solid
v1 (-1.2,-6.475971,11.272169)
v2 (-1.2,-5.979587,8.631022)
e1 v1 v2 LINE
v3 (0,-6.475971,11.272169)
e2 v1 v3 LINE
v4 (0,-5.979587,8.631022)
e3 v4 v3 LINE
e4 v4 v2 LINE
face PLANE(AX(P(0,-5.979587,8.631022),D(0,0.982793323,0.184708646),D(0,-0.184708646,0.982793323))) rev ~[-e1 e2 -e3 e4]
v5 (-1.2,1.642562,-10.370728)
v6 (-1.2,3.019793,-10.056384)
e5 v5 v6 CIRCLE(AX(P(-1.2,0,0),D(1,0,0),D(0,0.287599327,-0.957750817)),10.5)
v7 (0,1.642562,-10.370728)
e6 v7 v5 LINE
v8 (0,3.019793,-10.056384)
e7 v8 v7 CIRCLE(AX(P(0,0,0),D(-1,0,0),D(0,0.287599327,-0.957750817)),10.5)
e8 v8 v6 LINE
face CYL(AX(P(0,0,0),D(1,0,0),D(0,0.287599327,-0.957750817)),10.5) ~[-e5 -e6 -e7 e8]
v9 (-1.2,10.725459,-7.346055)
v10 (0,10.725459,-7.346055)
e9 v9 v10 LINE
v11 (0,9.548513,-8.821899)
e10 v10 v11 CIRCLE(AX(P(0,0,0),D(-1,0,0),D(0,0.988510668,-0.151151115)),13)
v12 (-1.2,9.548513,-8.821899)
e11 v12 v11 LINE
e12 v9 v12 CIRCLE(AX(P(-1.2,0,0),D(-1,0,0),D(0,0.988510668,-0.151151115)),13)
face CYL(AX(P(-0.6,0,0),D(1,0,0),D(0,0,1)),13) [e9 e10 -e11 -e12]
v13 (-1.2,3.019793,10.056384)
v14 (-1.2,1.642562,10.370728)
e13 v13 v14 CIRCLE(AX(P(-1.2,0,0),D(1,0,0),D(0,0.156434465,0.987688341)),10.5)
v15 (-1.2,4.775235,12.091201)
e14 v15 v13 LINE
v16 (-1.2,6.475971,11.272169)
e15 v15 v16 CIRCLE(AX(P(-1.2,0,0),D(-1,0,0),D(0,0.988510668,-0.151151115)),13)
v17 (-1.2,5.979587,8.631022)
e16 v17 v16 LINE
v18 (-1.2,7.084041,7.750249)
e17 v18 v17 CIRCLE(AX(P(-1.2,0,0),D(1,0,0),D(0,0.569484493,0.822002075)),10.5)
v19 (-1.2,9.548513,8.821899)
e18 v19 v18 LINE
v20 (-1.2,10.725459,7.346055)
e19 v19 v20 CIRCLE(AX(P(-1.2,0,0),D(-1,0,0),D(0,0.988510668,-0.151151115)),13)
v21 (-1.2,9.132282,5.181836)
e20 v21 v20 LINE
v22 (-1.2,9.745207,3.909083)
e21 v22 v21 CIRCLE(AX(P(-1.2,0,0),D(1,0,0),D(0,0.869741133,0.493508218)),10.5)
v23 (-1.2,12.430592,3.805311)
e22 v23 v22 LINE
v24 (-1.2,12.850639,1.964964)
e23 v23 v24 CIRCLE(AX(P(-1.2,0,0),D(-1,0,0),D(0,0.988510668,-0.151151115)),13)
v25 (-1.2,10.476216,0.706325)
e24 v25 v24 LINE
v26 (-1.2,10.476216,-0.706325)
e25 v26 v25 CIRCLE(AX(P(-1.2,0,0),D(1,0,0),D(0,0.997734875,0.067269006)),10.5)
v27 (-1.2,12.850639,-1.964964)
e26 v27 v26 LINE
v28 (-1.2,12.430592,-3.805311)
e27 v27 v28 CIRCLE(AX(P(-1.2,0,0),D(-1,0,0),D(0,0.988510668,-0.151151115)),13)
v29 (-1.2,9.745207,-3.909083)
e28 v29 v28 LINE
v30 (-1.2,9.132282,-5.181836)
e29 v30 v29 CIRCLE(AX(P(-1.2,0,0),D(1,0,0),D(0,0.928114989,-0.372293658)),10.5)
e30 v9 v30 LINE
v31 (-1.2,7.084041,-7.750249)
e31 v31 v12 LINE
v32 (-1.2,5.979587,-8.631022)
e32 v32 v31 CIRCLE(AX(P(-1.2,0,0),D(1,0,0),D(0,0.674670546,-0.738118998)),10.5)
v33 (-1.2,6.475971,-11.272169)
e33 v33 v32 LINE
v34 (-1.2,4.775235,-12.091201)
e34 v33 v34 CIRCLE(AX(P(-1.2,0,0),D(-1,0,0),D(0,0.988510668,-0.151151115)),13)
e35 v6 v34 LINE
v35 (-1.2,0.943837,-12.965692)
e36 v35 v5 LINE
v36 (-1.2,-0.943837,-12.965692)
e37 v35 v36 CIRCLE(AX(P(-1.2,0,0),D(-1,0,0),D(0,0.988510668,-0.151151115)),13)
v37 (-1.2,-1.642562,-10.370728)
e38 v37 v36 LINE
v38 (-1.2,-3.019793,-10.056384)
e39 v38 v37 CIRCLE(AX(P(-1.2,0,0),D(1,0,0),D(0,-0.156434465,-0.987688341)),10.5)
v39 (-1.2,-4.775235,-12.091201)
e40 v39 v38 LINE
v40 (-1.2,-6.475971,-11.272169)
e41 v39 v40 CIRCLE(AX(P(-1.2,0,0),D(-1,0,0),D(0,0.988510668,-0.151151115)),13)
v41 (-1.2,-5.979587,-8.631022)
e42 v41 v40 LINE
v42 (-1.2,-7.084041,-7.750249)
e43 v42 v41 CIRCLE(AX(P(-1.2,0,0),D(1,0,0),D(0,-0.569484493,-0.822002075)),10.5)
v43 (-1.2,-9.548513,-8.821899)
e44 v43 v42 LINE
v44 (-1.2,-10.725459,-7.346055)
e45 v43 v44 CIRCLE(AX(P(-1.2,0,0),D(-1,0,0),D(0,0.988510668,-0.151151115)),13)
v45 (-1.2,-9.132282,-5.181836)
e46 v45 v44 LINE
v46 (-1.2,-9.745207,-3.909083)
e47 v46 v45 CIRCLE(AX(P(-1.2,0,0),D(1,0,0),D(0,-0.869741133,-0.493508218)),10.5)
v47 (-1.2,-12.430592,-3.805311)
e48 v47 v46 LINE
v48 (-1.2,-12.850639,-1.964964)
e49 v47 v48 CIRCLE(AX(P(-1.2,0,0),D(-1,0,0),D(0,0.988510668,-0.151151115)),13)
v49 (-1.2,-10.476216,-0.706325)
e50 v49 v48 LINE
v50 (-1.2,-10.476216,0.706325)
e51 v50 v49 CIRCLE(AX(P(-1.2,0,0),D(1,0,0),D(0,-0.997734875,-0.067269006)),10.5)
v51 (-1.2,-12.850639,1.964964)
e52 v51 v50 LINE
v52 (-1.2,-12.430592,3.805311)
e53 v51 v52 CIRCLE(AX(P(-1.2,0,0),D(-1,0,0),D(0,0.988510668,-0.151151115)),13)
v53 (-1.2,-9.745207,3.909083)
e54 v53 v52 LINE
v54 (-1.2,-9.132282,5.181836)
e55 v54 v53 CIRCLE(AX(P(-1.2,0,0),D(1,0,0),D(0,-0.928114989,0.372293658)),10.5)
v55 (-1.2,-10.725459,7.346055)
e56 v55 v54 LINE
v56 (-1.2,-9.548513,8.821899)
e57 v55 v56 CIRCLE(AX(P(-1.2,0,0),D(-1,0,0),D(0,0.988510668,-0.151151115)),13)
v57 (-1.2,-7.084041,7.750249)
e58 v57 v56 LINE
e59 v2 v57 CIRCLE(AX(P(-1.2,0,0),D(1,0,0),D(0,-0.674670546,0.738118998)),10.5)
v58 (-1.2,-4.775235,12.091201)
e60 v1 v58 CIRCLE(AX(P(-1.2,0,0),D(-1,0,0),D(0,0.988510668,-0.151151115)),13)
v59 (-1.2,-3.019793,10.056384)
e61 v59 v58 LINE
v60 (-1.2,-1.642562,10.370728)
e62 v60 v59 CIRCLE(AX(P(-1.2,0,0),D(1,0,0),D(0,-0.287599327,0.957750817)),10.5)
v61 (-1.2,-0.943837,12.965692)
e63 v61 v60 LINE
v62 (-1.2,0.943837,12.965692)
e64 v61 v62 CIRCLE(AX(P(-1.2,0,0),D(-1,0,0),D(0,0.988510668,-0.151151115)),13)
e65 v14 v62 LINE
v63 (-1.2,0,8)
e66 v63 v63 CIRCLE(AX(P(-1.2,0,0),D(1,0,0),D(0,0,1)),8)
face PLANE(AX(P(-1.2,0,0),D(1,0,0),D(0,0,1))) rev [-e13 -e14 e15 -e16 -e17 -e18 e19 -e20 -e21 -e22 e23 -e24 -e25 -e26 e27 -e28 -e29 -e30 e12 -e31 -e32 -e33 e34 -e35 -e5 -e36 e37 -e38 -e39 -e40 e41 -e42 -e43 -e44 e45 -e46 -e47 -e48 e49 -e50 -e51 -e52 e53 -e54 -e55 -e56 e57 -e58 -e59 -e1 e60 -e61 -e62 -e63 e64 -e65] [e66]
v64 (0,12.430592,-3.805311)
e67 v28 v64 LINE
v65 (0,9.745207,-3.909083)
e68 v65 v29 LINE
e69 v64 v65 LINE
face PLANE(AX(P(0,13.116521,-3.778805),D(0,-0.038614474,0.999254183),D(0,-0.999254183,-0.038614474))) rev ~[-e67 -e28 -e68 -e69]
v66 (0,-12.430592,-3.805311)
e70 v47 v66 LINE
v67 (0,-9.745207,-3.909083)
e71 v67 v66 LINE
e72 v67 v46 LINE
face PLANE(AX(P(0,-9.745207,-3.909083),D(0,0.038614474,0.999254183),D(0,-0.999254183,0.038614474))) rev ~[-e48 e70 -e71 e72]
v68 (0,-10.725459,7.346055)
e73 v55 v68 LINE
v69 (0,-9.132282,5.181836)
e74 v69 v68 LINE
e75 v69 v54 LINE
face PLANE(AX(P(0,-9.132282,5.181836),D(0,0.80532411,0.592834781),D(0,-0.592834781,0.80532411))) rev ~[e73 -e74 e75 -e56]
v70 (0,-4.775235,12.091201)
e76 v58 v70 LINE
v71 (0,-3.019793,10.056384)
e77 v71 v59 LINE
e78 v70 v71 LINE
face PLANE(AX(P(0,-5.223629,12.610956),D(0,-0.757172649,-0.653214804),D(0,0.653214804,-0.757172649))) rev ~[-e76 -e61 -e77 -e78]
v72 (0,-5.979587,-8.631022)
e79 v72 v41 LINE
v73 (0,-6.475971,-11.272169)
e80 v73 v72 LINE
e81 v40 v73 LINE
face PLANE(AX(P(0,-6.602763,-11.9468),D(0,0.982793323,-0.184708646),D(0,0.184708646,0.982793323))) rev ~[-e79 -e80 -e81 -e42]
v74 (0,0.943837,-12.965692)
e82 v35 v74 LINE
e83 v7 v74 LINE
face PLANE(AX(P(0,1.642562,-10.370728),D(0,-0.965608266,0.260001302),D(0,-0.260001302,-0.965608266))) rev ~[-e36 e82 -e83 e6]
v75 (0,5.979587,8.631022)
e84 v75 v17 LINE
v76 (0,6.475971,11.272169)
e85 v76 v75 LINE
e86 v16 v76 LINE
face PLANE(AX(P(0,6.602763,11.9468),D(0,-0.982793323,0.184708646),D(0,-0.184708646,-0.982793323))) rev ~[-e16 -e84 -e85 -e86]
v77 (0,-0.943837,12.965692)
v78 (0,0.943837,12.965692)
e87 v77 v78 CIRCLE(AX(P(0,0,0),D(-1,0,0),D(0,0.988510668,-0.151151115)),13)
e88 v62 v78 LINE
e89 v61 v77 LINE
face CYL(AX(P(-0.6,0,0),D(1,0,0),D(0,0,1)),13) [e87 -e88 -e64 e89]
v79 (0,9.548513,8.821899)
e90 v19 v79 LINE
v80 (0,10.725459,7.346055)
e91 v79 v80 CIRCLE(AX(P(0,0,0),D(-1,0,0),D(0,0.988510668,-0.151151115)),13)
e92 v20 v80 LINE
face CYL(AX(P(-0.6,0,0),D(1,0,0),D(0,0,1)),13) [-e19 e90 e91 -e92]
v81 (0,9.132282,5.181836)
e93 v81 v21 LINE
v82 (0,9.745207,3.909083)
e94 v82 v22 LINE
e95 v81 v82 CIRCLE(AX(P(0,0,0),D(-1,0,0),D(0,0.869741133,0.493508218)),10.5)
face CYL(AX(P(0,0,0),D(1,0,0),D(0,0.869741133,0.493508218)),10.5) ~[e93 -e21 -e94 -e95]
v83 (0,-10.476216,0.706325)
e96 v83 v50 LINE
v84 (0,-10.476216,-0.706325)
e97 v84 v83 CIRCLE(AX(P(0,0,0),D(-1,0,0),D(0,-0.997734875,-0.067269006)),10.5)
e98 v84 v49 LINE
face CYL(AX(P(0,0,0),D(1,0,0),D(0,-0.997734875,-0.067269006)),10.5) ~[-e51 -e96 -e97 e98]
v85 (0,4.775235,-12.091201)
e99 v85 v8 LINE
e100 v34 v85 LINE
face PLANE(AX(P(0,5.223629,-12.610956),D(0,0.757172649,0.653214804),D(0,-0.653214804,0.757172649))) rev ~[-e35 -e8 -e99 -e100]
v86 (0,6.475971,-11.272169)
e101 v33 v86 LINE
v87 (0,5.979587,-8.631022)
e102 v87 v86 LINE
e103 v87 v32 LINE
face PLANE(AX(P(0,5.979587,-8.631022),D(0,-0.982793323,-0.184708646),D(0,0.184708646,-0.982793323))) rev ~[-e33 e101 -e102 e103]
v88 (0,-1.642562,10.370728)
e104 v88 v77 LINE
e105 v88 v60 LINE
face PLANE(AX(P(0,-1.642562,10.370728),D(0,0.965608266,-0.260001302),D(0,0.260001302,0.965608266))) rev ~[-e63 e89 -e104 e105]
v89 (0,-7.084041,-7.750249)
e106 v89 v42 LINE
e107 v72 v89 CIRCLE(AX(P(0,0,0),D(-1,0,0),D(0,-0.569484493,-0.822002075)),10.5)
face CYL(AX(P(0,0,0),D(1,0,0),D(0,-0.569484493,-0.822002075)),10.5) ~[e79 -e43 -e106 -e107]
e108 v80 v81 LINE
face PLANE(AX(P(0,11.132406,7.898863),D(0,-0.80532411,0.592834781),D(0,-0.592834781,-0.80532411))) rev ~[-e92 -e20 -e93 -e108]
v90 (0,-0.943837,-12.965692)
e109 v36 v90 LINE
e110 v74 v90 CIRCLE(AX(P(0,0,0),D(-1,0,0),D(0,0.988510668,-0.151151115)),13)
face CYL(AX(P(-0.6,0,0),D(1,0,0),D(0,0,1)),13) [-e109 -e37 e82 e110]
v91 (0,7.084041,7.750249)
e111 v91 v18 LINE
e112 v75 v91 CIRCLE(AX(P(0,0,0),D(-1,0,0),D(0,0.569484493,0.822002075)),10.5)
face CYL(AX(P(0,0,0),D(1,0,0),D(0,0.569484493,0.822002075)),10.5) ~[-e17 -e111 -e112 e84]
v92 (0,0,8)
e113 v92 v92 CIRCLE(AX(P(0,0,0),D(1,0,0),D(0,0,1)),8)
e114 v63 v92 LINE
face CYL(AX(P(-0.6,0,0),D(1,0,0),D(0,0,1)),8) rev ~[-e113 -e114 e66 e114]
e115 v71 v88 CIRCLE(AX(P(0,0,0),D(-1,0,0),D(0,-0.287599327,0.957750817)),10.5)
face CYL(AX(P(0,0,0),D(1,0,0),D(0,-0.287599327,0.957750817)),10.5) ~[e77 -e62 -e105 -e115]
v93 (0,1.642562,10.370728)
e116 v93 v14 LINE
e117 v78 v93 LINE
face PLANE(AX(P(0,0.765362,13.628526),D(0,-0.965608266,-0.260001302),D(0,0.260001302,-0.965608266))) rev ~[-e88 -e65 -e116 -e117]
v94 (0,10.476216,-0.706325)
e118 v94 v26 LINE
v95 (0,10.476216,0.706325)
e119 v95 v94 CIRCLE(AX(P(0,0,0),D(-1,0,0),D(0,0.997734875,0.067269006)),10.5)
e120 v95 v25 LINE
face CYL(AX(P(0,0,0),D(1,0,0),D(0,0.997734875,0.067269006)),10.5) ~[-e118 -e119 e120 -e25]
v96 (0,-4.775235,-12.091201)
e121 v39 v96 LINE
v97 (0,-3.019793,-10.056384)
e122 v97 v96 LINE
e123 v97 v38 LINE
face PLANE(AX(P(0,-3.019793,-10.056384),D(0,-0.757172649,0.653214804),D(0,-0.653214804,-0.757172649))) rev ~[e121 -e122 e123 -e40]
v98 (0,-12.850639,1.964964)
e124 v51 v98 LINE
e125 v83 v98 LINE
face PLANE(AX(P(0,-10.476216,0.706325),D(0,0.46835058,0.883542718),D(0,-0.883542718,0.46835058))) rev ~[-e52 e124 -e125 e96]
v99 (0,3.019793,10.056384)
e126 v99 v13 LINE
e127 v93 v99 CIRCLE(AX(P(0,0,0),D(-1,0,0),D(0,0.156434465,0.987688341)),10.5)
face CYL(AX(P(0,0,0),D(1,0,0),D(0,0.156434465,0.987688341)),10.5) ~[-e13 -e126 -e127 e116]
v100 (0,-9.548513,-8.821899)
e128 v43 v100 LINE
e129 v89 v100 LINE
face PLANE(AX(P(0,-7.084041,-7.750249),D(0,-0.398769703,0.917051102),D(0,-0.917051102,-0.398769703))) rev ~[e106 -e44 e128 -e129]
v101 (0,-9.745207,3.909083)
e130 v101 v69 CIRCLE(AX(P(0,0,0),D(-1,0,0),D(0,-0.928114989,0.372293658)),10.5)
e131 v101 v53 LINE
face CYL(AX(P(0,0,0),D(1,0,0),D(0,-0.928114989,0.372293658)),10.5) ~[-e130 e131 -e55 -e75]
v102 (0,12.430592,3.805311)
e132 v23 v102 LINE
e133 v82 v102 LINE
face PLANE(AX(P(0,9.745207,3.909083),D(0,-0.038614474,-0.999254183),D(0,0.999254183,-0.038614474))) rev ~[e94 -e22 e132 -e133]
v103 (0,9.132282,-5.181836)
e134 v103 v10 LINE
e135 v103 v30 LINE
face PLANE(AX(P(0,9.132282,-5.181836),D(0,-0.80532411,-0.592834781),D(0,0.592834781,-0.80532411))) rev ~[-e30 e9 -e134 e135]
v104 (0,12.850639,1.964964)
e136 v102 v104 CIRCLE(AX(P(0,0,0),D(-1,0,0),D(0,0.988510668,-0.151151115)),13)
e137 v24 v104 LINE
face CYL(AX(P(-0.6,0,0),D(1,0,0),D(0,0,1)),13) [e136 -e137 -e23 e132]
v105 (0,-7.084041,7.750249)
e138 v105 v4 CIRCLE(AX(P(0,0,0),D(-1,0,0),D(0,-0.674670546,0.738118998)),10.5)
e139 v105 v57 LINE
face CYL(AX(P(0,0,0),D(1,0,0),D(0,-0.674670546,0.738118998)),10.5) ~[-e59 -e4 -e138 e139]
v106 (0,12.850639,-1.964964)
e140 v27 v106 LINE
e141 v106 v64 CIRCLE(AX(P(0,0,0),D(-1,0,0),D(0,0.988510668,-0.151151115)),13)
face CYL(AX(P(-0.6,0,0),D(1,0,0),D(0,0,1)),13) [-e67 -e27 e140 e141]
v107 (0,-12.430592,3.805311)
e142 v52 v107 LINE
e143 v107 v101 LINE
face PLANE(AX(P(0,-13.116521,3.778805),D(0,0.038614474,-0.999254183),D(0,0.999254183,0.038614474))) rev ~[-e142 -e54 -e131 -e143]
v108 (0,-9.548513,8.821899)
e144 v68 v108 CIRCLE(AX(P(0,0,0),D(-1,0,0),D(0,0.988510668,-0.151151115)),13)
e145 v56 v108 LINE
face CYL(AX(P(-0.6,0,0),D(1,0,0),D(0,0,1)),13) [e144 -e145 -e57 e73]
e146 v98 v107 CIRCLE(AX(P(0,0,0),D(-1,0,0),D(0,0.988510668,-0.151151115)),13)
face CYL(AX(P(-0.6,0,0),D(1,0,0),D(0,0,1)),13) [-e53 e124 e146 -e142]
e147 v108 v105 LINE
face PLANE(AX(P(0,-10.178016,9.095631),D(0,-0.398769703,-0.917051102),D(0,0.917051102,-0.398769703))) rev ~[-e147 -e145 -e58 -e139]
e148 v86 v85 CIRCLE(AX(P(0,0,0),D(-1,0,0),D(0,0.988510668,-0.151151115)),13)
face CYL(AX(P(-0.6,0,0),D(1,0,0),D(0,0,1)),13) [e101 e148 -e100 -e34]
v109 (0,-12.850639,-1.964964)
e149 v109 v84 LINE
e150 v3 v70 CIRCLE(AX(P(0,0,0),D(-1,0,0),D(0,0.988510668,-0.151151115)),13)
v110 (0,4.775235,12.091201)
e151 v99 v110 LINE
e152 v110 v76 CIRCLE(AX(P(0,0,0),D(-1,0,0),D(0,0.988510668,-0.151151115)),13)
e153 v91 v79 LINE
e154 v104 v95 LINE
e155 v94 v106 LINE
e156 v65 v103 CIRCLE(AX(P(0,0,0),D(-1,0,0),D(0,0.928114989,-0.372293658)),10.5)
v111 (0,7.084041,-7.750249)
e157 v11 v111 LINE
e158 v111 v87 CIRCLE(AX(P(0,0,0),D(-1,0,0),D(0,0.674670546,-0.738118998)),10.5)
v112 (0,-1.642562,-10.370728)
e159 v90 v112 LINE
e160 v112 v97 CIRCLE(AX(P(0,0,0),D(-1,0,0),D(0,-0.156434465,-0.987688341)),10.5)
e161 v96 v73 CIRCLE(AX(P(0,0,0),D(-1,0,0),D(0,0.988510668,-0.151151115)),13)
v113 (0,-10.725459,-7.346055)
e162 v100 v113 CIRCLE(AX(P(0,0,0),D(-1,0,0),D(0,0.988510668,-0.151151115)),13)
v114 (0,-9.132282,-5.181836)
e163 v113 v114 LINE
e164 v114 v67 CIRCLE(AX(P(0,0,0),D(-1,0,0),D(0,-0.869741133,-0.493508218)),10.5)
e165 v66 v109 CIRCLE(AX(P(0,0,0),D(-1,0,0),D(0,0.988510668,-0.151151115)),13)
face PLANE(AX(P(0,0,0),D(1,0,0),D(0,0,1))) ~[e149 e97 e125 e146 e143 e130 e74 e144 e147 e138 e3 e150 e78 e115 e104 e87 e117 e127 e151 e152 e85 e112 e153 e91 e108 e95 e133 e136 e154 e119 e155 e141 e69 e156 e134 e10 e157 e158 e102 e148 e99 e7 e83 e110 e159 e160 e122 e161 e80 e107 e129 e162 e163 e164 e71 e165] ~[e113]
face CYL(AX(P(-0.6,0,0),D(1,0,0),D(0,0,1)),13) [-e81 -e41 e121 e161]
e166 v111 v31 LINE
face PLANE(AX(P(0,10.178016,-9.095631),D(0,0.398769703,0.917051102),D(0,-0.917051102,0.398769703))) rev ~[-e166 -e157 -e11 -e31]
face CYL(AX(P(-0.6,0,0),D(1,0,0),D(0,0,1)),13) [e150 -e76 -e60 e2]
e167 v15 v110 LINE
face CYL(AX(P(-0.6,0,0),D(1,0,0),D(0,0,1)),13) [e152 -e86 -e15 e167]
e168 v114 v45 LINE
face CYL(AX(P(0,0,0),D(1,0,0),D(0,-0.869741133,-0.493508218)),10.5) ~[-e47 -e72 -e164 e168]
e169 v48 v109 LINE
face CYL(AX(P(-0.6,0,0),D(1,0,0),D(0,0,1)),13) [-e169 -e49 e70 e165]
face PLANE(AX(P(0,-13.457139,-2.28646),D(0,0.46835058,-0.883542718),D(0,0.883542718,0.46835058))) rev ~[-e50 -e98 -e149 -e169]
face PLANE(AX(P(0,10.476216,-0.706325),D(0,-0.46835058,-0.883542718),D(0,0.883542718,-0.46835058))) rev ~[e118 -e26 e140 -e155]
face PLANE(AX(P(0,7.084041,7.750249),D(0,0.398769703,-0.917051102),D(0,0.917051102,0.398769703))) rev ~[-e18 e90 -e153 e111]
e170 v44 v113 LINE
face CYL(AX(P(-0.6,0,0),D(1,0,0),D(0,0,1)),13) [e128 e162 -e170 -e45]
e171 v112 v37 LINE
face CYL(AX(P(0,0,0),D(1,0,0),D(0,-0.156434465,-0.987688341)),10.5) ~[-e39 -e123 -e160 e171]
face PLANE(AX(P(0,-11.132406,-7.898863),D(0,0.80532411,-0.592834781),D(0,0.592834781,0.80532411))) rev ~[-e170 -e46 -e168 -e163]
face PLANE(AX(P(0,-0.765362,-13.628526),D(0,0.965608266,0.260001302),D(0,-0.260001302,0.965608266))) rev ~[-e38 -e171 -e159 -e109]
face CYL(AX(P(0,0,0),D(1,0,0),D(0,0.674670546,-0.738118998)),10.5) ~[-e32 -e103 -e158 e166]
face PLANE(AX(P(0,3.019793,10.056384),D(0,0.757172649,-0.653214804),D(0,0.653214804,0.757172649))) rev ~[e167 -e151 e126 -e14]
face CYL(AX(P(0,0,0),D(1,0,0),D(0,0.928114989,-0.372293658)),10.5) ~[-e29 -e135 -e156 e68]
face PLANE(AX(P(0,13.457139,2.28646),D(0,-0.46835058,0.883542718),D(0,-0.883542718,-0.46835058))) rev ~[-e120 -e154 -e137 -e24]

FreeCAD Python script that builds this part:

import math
import FreeCAD as App
import Part
import Sketcher
from FreeCAD import Vector

doc = App.newDocument("Part")
params = doc.addObject("Spreadsheet::Sheet", "Params")
for row, (alias, value) in enumerate([
    ("sketch1_height", "5 mm"),
    ("sketch1_width", "1.2 mm"),
    ("revolution_angle", "360 deg"),
    ("sketch2_radius", "10.5 mm"),
    ("sketch2_radius2", "13.65 mm"),
], start=1):
    params.set(f"A{row}", alias)
    params.set(f"B{row}", "=" + value)
    params.setAlias(f"B{row}", alias)

body = doc.addObject("PartDesign::Body", "Body")

sketch1 = body.newObject("Sketcher::SketchObject", "Sketch")
sketch1.AttachmentSupport = (doc.getObject("XY_Plane"), [""])
sketch1.MapMode = "FlatFace"
sketch1.addGeometry(Part.LineSegment(Vector(-1.2, 13, 0), Vector(-1.2, 8, 0)), False)
sketch1.addGeometry(Part.LineSegment(Vector(-1.2, 8, 0), Vector(0, 8, 0)), False)
sketch1.addGeometry(Part.LineSegment(Vector(0, 8, 0), Vector(0, 13, 0)), False)
sketch1.addGeometry(Part.LineSegment(Vector(0, 13, 0), Vector(-1.2, 13, 0)), False)
sketch1.addConstraint(Sketcher.Constraint("Coincident", 0, 2, 1, 1))
sketch1.addConstraint(Sketcher.Constraint("Coincident", 1, 2, 2, 1))
sketch1.addConstraint(Sketcher.Constraint("Coincident", 2, 2, 3, 1))
sketch1.addConstraint(Sketcher.Constraint("Coincident", 3, 2, 0, 1))
sketch1.addConstraint(Sketcher.Constraint("Vertical", 0))
sketch1.addConstraint(Sketcher.Constraint("Horizontal", 1))
sketch1.addConstraint(Sketcher.Constraint("Vertical", 2))
sketch1.addConstraint(Sketcher.Constraint("Horizontal", 3))
sketch1.addConstraint(Sketcher.Constraint("PointOnObject", 1, 2, -2))
sketch1.addConstraint(Sketcher.Constraint("DistanceY", 0, 2, 0, 1, 5.0))
sketch1.addConstraint(Sketcher.Constraint("DistanceX", 1, 1, 1, 2, 1.2))
sketch1.addConstraint(Sketcher.Constraint("DistanceY", -1, 1, 0, 2, 8.0))
sketch1.setExpression("Constraints[9]", "Params.sketch1_height")
sketch1.setExpression("Constraints[10]", "Params.sketch1_width")
revolution = body.newObject("PartDesign::Revolution", "Revolution")
revolution.Profile = sketch1
revolution.ReferenceAxis = (sketch1, ["H_Axis"])
revolution.setExpression("Angle", "Params.revolution_angle")

sketch2 = body.newObject("Sketcher::SketchObject", "Sketch001")
sketch2.AttachmentSupport = (doc.getObject("YZ_Plane"), [""])
sketch2.MapMode = "FlatFace"
sketch2.addGeometry(Part.LineSegment(Vector(13.457139, 2.28646, 0), Vector(10.476216, 0.706325, 0)), False)
sketch2.addGeometry(Part.ArcOfCircle(Part.Circle(Vector(0, 0, 0), Vector(0, 0, 1), 10.5), math.radians(-3.857143), math.radians(3.857143)), False)
sketch2.addGeometry(Part.LineSegment(Vector(10.476216, -0.706325, 0), Vector(13.457139, -2.28646, 0)), False)
sketch2.addGeometry(Part.ArcOfCircle(Part.Circle(Vector(0, 0, 0), Vector(0, 0, 1), 13.65), math.radians(-9.642857), math.radians(9.642857)), False)
sketch2.addConstraint(Sketcher.Constraint("Coincident", 0, 2, 1, 2))
sketch2.addConstraint(Sketcher.Constraint("Coincident", 1, 1, 2, 1))
sketch2.addConstraint(Sketcher.Constraint("Coincident", 2, 2, 3, 1))
sketch2.addConstraint(Sketcher.Constraint("Coincident", 3, 2, 0, 1))
sketch2.addConstraint(Sketcher.Constraint("Coincident", 1, 3, -1, 1))
sketch2.addConstraint(Sketcher.Constraint("Coincident", 3, 3, -1, 1))
sketch2.addConstraint(Sketcher.Constraint("Vertical", 0, 2, 1, 1))
sketch2.addConstraint(Sketcher.Constraint("Vertical", 2, 2, 3, 2))
sketch2.addConstraint(Sketcher.Constraint("Radius", 1, 10.5))
sketch2.addConstraint(Sketcher.Constraint("Radius", 3, 13.65))
sketch2.addConstraint(Sketcher.Constraint("Distance", 0, 3.37383))
sketch2.addConstraint(Sketcher.Constraint("DistanceX", -1, 1, 2, 2, 13.457139))
sketch2.setExpression("Constraints[8]", "Params.sketch2_radius")
sketch2.setExpression("Constraints[9]", "Params.sketch2_radius2")
pocket1 = body.newObject("PartDesign::Pocket", "Pocket")
pocket1.Profile = sketch2
pocket1.Type = "ThroughAll"
doc.recompute()

polarpattern = body.newObject("PartDesign::PolarPattern", "PolarPattern")
polarpattern.Originals = [pocket1]
polarpattern.Axis = (doc.getObject("X_Axis"), [""])
polarpattern.Angle = 360
polarpattern.Occurrences = 14
body.Tip = polarpattern

doc.recompute()
